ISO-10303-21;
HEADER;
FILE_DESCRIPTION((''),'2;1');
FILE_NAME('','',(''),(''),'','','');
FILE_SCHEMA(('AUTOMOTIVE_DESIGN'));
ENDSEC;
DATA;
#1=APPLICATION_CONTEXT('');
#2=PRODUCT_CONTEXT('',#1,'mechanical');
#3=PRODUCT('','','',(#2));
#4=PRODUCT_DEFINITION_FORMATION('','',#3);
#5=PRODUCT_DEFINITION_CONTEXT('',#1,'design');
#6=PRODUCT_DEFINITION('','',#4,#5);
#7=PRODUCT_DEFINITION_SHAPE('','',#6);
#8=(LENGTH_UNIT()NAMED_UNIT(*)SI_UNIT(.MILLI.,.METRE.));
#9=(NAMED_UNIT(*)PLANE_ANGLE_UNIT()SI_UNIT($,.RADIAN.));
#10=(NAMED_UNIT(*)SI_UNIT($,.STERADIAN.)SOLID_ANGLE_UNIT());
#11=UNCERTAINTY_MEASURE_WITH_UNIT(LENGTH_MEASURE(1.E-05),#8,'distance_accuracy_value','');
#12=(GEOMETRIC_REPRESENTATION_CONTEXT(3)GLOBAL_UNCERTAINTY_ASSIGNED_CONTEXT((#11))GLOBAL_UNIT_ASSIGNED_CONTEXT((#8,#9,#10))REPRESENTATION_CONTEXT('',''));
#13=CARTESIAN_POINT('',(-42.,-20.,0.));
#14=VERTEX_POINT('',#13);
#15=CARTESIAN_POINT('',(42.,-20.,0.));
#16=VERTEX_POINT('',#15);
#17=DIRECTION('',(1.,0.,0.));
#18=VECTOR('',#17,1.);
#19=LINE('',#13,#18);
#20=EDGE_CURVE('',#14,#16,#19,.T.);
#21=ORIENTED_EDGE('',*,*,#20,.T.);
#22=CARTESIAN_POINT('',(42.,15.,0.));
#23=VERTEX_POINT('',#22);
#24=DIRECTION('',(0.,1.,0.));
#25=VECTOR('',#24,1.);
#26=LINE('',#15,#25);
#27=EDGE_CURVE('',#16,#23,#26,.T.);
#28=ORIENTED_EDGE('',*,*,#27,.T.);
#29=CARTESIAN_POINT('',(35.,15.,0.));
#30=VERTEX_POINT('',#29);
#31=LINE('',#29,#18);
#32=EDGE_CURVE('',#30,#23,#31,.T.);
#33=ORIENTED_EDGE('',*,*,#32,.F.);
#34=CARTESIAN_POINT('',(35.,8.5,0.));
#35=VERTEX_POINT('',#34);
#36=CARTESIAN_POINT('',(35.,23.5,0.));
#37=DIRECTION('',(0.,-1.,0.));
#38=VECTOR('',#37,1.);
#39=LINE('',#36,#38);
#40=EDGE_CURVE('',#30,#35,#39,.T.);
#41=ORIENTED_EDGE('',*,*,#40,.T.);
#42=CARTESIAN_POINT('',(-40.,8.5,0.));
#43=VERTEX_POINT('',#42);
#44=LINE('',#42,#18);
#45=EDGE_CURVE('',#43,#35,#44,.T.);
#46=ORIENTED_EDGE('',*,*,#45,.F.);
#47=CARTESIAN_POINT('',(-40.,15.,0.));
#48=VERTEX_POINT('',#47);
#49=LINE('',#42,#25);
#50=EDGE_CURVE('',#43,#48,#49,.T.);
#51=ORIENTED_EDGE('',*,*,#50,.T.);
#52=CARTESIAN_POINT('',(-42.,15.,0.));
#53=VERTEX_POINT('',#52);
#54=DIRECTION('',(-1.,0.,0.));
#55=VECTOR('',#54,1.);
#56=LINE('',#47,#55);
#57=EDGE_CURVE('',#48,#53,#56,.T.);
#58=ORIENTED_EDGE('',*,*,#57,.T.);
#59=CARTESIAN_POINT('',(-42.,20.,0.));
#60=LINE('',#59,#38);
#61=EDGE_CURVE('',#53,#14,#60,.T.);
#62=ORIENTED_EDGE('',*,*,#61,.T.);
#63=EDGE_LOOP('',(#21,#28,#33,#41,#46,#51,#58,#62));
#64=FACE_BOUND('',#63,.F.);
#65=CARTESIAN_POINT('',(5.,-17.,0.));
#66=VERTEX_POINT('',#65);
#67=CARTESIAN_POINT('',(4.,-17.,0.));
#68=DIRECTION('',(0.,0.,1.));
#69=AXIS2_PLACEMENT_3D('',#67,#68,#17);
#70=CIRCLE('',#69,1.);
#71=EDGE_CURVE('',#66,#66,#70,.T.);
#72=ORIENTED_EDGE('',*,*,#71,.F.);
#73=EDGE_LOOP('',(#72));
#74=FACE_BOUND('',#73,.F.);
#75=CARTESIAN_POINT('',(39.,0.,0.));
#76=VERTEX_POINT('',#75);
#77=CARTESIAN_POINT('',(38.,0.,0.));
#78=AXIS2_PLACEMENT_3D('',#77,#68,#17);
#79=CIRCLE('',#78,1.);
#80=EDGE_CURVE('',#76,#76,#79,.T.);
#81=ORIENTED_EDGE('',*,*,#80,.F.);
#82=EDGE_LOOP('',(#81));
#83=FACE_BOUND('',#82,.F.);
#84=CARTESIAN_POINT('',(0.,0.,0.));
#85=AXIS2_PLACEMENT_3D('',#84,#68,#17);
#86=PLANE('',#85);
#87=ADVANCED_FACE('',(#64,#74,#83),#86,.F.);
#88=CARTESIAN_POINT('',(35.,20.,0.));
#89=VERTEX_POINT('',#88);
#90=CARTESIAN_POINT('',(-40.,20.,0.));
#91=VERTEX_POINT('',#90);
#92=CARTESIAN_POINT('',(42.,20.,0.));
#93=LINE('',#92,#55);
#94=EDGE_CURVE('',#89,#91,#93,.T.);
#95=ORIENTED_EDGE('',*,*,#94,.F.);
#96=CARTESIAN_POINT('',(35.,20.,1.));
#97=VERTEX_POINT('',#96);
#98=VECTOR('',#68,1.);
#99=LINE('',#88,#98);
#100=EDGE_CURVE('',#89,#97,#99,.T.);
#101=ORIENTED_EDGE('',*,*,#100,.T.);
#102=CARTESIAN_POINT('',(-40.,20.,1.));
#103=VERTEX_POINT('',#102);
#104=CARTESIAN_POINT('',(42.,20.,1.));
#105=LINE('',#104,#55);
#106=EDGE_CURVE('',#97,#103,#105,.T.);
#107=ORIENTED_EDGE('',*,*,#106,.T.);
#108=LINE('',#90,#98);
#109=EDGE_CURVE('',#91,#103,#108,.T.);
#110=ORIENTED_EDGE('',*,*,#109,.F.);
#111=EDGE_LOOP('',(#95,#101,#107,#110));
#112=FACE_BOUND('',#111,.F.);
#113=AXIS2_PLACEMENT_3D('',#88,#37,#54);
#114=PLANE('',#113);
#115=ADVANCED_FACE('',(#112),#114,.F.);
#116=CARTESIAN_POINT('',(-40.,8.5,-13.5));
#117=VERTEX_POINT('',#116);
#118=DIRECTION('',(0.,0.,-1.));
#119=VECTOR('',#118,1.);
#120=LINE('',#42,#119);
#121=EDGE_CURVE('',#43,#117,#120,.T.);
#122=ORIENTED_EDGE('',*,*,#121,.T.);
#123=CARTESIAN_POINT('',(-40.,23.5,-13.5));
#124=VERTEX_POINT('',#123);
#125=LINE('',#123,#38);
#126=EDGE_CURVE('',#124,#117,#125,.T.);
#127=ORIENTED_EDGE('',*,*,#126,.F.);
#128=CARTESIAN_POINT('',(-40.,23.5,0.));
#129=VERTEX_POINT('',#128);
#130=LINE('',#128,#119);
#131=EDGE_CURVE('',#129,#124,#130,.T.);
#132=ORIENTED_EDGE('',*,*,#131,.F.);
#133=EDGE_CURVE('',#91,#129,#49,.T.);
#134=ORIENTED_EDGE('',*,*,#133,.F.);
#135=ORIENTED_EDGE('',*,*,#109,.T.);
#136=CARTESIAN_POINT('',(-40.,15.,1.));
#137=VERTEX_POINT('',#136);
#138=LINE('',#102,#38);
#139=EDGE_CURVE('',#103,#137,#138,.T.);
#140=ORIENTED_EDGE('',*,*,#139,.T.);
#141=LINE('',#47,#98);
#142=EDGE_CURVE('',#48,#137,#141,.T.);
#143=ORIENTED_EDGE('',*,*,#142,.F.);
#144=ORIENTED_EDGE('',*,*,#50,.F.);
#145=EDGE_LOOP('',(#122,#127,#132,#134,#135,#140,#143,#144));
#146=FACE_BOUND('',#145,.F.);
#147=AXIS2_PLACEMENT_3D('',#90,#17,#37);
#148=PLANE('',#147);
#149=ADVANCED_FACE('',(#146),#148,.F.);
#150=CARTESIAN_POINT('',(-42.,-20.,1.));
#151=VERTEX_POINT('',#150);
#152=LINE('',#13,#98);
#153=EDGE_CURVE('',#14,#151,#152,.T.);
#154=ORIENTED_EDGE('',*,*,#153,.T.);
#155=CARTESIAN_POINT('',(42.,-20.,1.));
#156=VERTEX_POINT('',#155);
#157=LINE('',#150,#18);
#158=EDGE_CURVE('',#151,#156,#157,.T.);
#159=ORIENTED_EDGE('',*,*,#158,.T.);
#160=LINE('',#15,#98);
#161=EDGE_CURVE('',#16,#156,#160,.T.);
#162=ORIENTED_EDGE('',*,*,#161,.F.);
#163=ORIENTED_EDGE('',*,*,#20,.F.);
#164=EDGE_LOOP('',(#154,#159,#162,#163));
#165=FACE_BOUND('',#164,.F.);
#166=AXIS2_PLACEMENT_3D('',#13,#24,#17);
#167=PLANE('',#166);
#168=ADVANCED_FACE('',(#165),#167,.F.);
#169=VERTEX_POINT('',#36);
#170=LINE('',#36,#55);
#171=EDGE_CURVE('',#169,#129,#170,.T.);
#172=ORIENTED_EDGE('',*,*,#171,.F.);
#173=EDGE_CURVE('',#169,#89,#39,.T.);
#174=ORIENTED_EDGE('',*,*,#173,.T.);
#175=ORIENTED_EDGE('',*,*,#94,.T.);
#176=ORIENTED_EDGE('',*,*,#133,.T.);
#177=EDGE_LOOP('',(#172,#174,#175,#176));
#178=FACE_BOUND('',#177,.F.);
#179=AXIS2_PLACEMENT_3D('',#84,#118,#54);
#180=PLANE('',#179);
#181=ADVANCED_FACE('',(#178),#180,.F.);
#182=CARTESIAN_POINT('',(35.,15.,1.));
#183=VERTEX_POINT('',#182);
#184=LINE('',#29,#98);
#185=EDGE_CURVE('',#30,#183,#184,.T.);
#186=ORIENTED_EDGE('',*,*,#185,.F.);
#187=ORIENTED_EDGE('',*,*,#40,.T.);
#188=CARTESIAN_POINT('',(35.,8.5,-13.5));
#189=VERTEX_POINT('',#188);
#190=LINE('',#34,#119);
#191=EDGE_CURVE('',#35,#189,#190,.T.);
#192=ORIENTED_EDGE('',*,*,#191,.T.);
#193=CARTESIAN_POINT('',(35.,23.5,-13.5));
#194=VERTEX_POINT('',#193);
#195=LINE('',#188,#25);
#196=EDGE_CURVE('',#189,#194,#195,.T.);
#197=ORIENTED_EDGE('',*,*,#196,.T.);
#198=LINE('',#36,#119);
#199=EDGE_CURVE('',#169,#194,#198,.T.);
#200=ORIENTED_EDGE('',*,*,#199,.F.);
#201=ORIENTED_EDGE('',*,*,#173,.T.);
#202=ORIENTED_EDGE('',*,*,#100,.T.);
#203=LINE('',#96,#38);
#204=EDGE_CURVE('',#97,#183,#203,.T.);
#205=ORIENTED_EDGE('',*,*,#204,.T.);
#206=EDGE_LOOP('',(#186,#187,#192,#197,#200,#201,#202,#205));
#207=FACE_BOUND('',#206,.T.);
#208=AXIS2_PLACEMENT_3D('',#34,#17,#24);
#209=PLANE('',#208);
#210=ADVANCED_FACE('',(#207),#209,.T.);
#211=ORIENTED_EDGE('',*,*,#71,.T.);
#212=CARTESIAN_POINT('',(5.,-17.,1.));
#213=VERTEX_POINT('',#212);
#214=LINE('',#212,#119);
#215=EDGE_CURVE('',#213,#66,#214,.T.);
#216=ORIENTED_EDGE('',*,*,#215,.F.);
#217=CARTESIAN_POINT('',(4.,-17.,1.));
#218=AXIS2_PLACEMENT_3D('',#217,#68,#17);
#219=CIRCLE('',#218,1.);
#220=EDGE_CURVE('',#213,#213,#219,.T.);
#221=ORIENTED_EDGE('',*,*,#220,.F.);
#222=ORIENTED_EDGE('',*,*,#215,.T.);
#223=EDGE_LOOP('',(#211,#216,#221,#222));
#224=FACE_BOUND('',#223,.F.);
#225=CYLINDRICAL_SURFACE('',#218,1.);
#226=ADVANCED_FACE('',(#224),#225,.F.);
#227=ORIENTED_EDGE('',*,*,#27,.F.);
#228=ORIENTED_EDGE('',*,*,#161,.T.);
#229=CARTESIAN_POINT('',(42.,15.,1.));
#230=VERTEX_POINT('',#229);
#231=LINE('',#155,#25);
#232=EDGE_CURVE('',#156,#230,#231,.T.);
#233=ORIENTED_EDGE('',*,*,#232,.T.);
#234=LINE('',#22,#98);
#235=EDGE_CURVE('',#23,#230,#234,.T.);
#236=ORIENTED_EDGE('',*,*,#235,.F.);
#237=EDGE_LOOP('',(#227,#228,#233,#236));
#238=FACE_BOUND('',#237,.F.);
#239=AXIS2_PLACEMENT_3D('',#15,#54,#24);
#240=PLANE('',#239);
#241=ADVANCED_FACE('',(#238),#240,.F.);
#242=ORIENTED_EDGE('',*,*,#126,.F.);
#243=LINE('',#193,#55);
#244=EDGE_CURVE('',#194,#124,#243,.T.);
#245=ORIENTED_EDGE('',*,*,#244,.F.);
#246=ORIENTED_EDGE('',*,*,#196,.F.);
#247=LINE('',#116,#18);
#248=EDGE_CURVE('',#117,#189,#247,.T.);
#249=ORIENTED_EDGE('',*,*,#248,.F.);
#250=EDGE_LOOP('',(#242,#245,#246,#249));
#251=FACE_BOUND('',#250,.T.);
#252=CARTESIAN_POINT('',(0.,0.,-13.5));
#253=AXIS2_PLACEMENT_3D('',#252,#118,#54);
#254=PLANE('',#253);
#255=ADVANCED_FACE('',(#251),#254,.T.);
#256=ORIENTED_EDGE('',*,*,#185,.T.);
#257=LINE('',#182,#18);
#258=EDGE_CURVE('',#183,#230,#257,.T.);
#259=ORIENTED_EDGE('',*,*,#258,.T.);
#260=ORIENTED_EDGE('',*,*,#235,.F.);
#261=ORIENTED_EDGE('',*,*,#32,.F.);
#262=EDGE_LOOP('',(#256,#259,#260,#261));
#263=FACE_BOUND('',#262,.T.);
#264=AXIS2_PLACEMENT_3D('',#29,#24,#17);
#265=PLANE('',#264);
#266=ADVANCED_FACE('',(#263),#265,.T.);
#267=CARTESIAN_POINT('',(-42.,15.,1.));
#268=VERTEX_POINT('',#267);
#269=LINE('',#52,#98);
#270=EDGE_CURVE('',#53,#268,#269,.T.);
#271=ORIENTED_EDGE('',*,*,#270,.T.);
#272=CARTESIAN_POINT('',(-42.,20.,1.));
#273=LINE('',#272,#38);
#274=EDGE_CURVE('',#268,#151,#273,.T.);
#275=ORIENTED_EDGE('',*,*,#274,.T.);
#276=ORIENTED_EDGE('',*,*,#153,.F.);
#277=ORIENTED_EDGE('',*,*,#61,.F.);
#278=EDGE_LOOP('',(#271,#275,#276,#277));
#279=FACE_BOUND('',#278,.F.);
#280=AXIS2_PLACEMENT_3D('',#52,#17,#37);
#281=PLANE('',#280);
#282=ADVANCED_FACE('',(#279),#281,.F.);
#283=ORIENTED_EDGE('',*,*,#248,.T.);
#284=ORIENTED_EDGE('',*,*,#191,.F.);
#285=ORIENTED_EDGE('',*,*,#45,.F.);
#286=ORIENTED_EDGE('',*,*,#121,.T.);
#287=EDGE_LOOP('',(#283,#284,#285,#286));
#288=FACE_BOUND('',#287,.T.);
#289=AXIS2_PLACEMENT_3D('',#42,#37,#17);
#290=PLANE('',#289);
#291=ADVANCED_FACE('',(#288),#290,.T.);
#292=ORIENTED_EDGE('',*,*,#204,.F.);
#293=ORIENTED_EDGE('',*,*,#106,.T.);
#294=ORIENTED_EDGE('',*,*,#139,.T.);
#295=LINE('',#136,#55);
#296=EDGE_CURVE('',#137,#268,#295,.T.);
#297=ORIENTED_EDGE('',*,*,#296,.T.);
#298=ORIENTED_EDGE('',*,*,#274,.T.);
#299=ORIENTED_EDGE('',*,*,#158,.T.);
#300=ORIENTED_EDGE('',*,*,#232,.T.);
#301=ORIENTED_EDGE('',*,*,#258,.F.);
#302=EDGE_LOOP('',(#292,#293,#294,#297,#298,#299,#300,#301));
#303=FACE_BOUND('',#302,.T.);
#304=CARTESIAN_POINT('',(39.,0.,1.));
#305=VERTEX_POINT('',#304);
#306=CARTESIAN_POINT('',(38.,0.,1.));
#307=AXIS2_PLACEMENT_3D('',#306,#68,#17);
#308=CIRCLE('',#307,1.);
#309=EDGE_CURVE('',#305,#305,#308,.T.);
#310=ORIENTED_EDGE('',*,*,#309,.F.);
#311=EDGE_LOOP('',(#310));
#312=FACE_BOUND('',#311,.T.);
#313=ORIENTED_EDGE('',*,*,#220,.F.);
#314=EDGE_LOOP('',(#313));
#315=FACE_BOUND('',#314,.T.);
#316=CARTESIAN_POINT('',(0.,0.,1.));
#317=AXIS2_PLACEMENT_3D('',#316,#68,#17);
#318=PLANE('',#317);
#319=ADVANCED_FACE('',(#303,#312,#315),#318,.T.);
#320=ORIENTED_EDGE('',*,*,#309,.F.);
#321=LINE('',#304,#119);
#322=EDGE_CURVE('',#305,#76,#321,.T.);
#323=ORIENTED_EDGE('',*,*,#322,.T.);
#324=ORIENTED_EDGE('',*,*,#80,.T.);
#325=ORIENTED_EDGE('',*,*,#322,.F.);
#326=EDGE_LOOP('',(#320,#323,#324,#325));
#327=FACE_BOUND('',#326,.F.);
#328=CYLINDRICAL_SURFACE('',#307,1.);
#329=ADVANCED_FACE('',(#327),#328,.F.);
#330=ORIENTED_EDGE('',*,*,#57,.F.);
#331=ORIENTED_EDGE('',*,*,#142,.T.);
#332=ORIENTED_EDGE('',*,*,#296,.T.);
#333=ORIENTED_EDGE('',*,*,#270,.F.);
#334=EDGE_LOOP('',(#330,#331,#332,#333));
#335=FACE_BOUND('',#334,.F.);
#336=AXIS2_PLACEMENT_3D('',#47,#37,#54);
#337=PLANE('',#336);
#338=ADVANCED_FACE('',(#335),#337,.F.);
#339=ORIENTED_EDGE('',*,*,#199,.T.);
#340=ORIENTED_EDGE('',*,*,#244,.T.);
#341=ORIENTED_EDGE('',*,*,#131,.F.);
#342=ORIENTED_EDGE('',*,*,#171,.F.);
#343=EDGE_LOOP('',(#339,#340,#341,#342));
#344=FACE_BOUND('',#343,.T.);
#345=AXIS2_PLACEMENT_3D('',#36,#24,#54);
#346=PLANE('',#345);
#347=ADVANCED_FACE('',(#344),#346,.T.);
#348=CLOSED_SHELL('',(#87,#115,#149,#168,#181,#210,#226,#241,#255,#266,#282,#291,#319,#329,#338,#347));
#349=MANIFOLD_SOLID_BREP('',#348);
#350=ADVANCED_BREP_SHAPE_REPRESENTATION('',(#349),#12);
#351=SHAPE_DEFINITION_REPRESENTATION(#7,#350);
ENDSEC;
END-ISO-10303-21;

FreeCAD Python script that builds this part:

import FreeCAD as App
import Part
import Sketcher
from FreeCAD import Vector


def add_polygon(sketch, points):
    """Adds a closed chain of lines whose ends are joined by coincident constraints."""
    first, n = sketch.GeometryCount, len(points)
    for a, b in zip(points, points[1:] + points[:1]):
        sketch.addGeometry(Part.LineSegment(App.Vector(*a, 0), App.Vector(*b, 0)), False)
    for i in range(n):
        sketch.addConstraint(Sketcher.Constraint("Coincident", first + i, 2, first + (i + 1) % n, 1))

doc = App.newDocument("Part")
body = doc.addObject("PartDesign::Body", "Body")

# Sketch on XY plane
sketch1 = doc.addObject("Sketcher::SketchObject", "Sketch")
body.addObject(sketch1)
sketch1.AttachmentSupport = (doc.XY_Plane, [""])
sketch1.MapMode = "FlatFace"
add_polygon(sketch1, [(-42, 15), (-42, -20), (42, -20), (42, 15), (35, 15), (35, 20), (-40, 20), (-40, 15)])  # lines 0-7
sketch1.addConstraint([
    Sketcher.Constraint("Vertical", 0),
    Sketcher.Constraint("Horizontal", 1),
    Sketcher.Constraint("Vertical", 2),
    Sketcher.Constraint("Horizontal", 3),
    Sketcher.Constraint("Vertical", 4),
    Sketcher.Constraint("Horizontal", 5),
    Sketcher.Constraint("Vertical", 6),
    Sketcher.Constraint("Horizontal", 7),
    Sketcher.Constraint("Symmetric", 2, 2, 7, 2, -2),
    Sketcher.Constraint("DistanceX", 1, 1, 1, 2, 84.0),
    Sketcher.Constraint("DistanceX", 5, 2, 5, 1, 75.0),
    Sketcher.Constraint("DistanceX", 7, 2, 7, 1, 2.0),
    Sketcher.Constraint("DistanceY", 4, 1, 4, 2, 5.0),
    Sketcher.Constraint("DistanceY", 1, 2, 4, 2, 40.0),
    Sketcher.Constraint("DistanceY", 0, 2, -1, 1, 20.0),
])
pad1 = doc.addObject("PartDesign::Pad", "Pad")
body.addObject(pad1)
pad1.Profile = sketch1
pad1.Length = 1

# Sketch on XY plane
sketch2 = doc.addObject("Sketcher::SketchObject", "Sketch001")
body.addObject(sketch2)
sketch2.AttachmentSupport = (doc.XY_Plane, [""])
sketch2.MapMode = "FlatFace"
add_polygon(sketch2, [(35, 8), (-40, 8), (-40, 24), (35, 24)])  # lines 0-3
sketch2.addConstraint([
    Sketcher.Constraint("Horizontal", 0),
    Sketcher.Constraint("Vertical", 1),
    Sketcher.Constraint("Horizontal", 2),
    Sketcher.Constraint("Vertical", 3),
    Sketcher.Constraint("DistanceY", 1, 1, 1, 2, 15.0),
    Sketcher.Constraint("DistanceX", 0, 2, 0, 1, 75.0),
    Sketcher.Constraint("DistanceX", 0, 2, -1, 1, 40.0),
    Sketcher.Constraint("DistanceY", -1, 1, 0, 2, 8.5),
])
pad2 = doc.addObject("PartDesign::Pad", "Pad001")
body.addObject(pad2)
pad2.Profile = sketch2
pad2.Length = 13.5
pad2.Reversed = True

# Sketch on XY plane
sketch3 = doc.addObject("Sketcher::SketchObject", "Sketch002")
body.addObject(sketch3)
sketch3.AttachmentSupport = (doc.XY_Plane, [""])
sketch3.MapMode = "FlatFace"
sketch3.AttachmentOffset = App.Placement(Vector(0, 0, 1), App.Rotation())
sketch3.addGeometry([
    Part.Circle(Vector(4, -17, 0), Vector(0, 0, 1), 1),
    Part.Circle(Vector(38, 0, 0), Vector(0, 0, 1), 1),
], False)
sketch3.addConstraint([
    Sketcher.Constraint("Equal", 0, 1),
    Sketcher.Constraint("PointOnObject", 1, 3, -1),
    Sketcher.Constraint("Diameter", 0, 2.0),
    Sketcher.Constraint("DistanceX", -1, 1, 0, 3, 4.0),
    Sketcher.Constraint("DistanceY", 0, 3, -1, 1, 17.0),
    Sketcher.Constraint("DistanceX", -1, 1, 1, 3, 38.0),
])
pocket1 = doc.addObject("PartDesign::Pocket", "Pocket")
body.addObject(pocket1)
pocket1.Profile = sketch3
pocket1.Type = "ThroughAll"

doc.recompute()
